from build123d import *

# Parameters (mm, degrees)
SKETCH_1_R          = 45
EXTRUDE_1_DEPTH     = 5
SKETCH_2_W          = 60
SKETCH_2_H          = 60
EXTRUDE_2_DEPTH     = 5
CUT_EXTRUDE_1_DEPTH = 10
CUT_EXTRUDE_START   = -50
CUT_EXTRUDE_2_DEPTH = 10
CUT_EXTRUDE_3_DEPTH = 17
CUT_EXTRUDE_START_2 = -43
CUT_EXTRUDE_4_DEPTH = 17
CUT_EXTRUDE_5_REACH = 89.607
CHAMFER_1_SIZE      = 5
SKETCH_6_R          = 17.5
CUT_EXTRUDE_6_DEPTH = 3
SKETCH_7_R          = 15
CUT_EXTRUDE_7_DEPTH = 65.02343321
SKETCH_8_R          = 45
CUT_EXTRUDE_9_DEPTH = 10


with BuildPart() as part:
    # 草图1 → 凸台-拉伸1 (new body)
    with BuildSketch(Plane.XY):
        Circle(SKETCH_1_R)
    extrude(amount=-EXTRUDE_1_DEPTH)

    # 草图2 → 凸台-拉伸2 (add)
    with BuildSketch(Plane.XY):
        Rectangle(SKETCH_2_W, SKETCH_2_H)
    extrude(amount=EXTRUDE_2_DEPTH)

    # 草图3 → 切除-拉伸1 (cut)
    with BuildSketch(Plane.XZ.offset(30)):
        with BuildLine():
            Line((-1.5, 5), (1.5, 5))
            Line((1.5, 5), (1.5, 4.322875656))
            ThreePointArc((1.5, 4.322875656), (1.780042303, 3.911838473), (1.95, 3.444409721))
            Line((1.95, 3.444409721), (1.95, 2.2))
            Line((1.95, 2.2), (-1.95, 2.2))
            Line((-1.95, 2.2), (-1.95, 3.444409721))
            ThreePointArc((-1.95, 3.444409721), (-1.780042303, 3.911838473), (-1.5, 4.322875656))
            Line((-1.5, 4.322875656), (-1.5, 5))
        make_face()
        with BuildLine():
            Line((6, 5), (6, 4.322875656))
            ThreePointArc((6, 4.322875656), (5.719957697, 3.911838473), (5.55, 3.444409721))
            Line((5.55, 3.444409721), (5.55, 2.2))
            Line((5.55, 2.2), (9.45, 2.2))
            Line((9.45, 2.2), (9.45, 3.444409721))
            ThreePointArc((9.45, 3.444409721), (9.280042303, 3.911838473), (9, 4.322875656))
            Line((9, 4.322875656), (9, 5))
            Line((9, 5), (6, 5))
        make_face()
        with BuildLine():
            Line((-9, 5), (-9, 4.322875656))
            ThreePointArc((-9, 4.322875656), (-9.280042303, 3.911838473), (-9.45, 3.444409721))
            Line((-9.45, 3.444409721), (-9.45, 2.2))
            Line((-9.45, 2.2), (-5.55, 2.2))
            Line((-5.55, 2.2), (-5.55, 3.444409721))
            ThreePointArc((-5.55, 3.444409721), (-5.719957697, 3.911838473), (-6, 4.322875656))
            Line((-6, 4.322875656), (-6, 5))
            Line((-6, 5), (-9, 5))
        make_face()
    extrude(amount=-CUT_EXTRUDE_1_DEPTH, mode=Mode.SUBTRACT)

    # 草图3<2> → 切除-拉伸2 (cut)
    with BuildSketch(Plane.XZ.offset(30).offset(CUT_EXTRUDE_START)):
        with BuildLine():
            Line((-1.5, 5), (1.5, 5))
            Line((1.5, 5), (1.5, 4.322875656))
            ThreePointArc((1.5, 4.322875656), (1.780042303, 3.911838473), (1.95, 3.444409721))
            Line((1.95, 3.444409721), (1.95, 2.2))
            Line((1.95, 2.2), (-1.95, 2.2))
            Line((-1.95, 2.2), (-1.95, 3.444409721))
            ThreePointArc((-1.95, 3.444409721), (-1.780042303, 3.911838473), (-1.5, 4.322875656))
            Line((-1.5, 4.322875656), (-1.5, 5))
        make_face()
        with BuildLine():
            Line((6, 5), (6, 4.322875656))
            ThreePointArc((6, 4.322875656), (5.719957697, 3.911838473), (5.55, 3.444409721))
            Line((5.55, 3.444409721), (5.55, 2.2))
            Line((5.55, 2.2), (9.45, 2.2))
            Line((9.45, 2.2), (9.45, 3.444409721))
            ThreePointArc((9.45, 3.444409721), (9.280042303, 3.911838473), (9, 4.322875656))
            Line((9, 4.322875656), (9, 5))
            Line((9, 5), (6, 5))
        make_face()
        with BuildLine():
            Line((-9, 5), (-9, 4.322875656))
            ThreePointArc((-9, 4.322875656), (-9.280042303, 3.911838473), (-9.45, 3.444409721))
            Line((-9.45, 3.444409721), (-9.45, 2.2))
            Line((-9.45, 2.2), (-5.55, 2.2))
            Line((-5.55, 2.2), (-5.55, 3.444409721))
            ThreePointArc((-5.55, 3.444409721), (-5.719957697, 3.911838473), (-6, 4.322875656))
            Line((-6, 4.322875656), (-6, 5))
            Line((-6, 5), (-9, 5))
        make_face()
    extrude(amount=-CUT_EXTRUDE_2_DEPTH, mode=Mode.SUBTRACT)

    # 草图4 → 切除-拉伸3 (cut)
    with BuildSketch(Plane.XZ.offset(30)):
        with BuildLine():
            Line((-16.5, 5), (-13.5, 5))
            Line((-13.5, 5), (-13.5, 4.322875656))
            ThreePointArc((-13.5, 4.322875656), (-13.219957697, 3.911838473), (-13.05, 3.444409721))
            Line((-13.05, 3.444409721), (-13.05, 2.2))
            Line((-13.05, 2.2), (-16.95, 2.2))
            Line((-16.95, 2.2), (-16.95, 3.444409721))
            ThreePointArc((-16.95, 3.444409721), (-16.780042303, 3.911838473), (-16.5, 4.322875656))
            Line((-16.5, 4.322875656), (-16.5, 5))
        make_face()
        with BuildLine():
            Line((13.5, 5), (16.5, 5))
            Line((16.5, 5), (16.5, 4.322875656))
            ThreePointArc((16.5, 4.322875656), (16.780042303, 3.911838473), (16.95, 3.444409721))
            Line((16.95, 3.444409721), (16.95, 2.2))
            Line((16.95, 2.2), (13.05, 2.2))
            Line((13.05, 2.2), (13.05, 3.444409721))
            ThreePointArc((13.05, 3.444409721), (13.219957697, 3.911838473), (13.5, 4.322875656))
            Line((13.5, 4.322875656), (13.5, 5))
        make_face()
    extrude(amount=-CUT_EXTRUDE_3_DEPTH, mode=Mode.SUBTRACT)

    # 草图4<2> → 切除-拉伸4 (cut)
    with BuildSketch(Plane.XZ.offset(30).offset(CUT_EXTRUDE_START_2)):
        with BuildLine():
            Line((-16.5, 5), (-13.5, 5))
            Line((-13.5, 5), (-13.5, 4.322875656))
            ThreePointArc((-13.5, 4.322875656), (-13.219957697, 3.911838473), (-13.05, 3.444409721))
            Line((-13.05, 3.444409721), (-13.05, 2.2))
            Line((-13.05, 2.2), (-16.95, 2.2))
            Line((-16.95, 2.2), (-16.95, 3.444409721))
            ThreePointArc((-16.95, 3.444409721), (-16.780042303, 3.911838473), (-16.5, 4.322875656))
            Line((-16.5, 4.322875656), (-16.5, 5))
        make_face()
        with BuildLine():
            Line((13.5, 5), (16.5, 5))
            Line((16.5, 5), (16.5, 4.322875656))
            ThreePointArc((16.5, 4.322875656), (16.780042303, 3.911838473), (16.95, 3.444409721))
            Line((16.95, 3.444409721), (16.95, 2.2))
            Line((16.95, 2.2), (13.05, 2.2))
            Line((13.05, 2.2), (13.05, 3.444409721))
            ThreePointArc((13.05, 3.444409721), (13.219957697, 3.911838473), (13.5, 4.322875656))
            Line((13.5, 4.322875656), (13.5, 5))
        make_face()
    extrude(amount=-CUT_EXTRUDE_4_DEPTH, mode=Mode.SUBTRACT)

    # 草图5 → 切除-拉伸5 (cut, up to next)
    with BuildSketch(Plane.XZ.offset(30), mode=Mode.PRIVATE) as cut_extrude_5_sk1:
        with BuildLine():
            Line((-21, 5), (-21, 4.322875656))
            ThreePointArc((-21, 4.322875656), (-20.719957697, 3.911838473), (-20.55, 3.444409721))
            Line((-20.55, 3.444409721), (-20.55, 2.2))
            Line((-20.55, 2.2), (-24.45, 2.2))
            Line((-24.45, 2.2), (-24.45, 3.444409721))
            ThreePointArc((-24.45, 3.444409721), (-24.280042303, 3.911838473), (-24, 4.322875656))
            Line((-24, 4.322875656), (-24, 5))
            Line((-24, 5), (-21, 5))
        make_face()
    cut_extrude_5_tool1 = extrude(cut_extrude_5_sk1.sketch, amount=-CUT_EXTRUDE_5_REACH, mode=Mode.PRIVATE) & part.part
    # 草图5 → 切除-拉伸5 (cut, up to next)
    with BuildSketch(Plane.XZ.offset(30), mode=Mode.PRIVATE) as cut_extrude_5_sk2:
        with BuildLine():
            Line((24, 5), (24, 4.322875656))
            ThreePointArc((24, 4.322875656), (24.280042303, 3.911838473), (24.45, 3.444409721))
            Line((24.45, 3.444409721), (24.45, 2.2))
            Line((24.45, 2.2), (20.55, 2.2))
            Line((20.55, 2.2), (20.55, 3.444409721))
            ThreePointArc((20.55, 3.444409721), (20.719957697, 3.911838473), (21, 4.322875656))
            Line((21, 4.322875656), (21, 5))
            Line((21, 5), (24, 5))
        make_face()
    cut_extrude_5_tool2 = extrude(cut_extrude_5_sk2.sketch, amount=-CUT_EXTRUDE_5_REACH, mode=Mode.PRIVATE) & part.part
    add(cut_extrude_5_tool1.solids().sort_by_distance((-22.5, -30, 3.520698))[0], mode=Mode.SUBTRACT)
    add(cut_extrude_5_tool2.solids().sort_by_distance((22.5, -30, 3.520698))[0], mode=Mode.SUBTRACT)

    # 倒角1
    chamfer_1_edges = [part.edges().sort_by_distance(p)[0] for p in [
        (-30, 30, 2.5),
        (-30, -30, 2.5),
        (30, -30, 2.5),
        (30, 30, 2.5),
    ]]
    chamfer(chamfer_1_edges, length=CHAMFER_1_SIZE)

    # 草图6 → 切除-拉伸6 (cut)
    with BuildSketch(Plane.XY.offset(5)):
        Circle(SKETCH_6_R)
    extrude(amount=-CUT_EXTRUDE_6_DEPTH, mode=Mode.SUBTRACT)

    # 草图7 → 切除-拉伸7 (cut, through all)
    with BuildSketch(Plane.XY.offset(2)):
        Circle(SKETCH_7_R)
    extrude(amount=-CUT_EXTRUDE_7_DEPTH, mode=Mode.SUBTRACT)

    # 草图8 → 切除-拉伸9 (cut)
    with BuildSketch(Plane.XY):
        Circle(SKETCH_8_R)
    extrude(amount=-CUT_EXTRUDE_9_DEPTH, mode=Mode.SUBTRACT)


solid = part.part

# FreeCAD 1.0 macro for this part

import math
import FreeCAD as App
import Part
import Sketcher

V = App.Vector


def edges_at(feature, points):
    """Names of the edges that pass closest to the given points."""
    edges = feature.Shape.Edges
    near = lambda p: min(range(len(edges)), key=lambda i: edges[i].distToShape(Part.Vertex(*p))[0])
    return sorted({f"Edge{near(p) + 1}" for p in points})


def add_polygon(sketch, points):
    """Adds a closed chain of lines whose ends are joined by coincident constraints."""
    first, n = sketch.GeometryCount, len(points)
    for a, b in zip(points, points[1:] + points[:1]):
        sketch.addGeometry(Part.LineSegment(App.Vector(*a, 0), App.Vector(*b, 0)), False)
    for i in range(n):
        sketch.addConstraint(Sketcher.Constraint("Coincident", first + i, 2, first + (i + 1) % n, 1))

doc = App.newDocument("Part")
params = doc.addObject("Spreadsheet::Sheet", "Params")
for row, (alias, value) in enumerate([
    ("sketch1_diameter", "90 mm"),
    ("pad1_length", "5 mm"),
    ("sketch2_width", "60 mm"),
    ("pad2_length", "5 mm"),
    ("sketch3_radius", "2 mm"),
    ("sketch3_width", "3 mm"),
    ("sketch3_width2", "3.9 mm"),
    ("pocket1_length", "10 mm"),
    ("sketch4_radius", "2 mm"),
    ("sketch4_width", "3 mm"),
    ("sketch4_width2", "3.9 mm"),
    ("pocket2_length", "10 mm"),
    ("sketch5_radius", "2 mm"),
    ("sketch5_width", "3 mm"),
    ("sketch5_width2", "3.9 mm"),
    ("pocket3_length", "17 mm"),
    ("sketch6_radius", "2 mm"),
    ("sketch6_width", "3 mm"),
    ("sketch6_width2", "3.9 mm"),
    ("pocket4_length", "17 mm"),
    ("sketch7_radius", "2 mm"),
    ("sketch7_width", "3 mm"),
    ("sketch7_width2", "3.9 mm"),
    ("sketch8_radius", "2 mm"),
    ("sketch8_width", "3 mm"),
    ("sketch8_width2", "3.9 mm"),
    ("chamfer_size", "5 mm"),
    ("sketch9_diameter", "35 mm"),
    ("pocket7_length", "3 mm"),
    ("sketch10_diameter", "30 mm"),
    ("sketch11_diameter", "90 mm"),
    ("pocket9_length", "10 mm"),
], start=1):
    params.set(f"A{row}", alias)
    params.set(f"B{row}", "=" + value)
    params.setAlias(f"B{row}", alias)

body = doc.addObject("PartDesign::Body", "Body")

sketch1 = body.newObject("Sketcher::SketchObject", "Sketch")
sketch1.AttachmentSupport = (doc.getObject("XY_Plane"), [""])
sketch1.MapMode = "FlatFace"
sketch1.addGeometry(Part.Circle(V(0, 0, 0), V(0, 0, 1), 45), False)
sketch1.addConstraint([
    Sketcher.Constraint("Coincident", 0, 3, -1, 1),
    Sketcher.Constraint("Diameter", 0, 90.0),
])
sketch1.setExpression("Constraints[1]", "Params.sketch1_diameter")
pad1 = body.newObject("PartDesign::Pad", "Pad")
pad1.Profile = sketch1
pad1.setExpression("Length", "Params.pad1_length")
pad1.Reversed = True

sketch2 = body.newObject("Sketcher::SketchObject", "Sketch001")
sketch2.AttachmentSupport = (doc.getObject("XY_Plane"), [""])
sketch2.MapMode = "FlatFace"
add_polygon(sketch2, [(-30, 30), (-30, -30), (30, -30), (30, 30)])
sketch2.addConstraint([
    Sketcher.Constraint("Vertical", 0),
    Sketcher.Constraint("Horizontal", 1),
    Sketcher.Constraint("Vertical", 2),
    Sketcher.Constraint("Horizontal", 3),
    Sketcher.Constraint("Symmetric", 0, 2, 2, 2, -1, 1),
    Sketcher.Constraint("Equal", 3, 0),
    Sketcher.Constraint("DistanceX", 1, 1, 1, 2, 60.0),
])
sketch2.setExpression("Constraints[10]", "Params.sketch2_width")
pad2 = body.newObject("PartDesign::Pad", "Pad001")
pad2.Profile = sketch2
pad2.setExpression("Length", "Params.pad2_length")

sketch3 = body.newObject("Sketcher::SketchObject", "Sketch002")
sketch3.AttachmentSupport = (doc.getObject("XZ_Plane"), [""])
sketch3.MapMode = "FlatFace"
sketch3.AttachmentOffset = App.Placement(V(0, 0, 30), App.Rotation())
sketch3.addGeometry([
    Part.LineSegment(V(1.5, 5, 0), V(-1.5, 5, 0)),
    Part.LineSegment(V(-1.5, 5, 0), V(-1.5, 4.3, 0)),
    Part.ArcOfCircle(Part.Circle(V(0, 3, 0), V(0, 0, 1), 2), math.radians(139), math.radians(167)),
    Part.LineSegment(V(-1.9, 3.4, 0), V(-1.9, 2.2, 0)),
    Part.LineSegment(V(-1.9, 2.2, 0), V(1.9, 2.2, 0)),
    Part.LineSegment(V(1.9, 2.2, 0), V(1.9, 3.4, 0)),
    Part.ArcOfCircle(Part.Circle(V(0, 3, 0), V(0, 0, 1), 2), math.radians(13), math.radians(41)),
    Part.LineSegment(V(1.5, 4.3, 0), V(1.5, 5, 0)),
    Part.LineSegment(V(6, 5, 0), V(6, 4.3, 0)),
    Part.ArcOfCircle(Part.Circle(V(7.5, 3, 0), V(0, 0, 1), 2), math.radians(139), math.radians(167)),
    Part.LineSegment(V(5.5, 3.4, 0), V(5.5, 2.2, 0)),
    Part.LineSegment(V(5.5, 2.2, 0), V(9.4, 2.2, 0)),
    Part.LineSegment(V(9.4, 2.2, 0), V(9.4, 3.4, 0)),
    Part.ArcOfCircle(Part.Circle(V(7.5, 3, 0), V(0, 0, 1), 2), math.radians(13), math.radians(41)),
    Part.LineSegment(V(9, 4.3, 0), V(9, 5, 0)),
    Part.LineSegment(V(9, 5, 0), V(6, 5, 0)),
    Part.LineSegment(V(-9, 5, 0), V(-9, 4.3, 0)),
    Part.ArcOfCircle(Part.Circle(V(-7.5, 3, 0), V(0, 0, 1), 2), math.radians(139), math.radians(167)),
    Part.LineSegment(V(-9.4, 3.4, 0), V(-9.4, 2.2, 0)),
    Part.LineSegment(V(-9.4, 2.2, 0), V(-5.5, 2.2, 0)),
    Part.LineSegment(V(-5.5, 2.2, 0), V(-5.5, 3.4, 0)),
    Part.ArcOfCircle(Part.Circle(V(-7.5, 3, 0), V(0, 0, 1), 2), math.radians(13), math.radians(41)),
    Part.LineSegment(V(-6, 4.3, 0), V(-6, 5, 0)),
    Part.LineSegment(V(-6, 5, 0), V(-9, 5, 0)),
], False)
sketch3.addConstraint([
    Sketcher.Constraint("Coincident", 0, 2, 1, 1),
    Sketcher.Constraint("Coincident", 1, 2, 2, 1),
    Sketcher.Constraint("Coincident", 2, 2, 3, 1),
    Sketcher.Constraint("Coincident", 3, 2, 4, 1),
    Sketcher.Constraint("Coincident", 4, 2, 5, 1),
    Sketcher.Constraint("Coincident", 5, 2, 6, 1),
    Sketcher.Constraint("Coincident", 6, 2, 7, 1),
    Sketcher.Constraint("Coincident", 7, 2, 0, 1),
    Sketcher.Constraint("Coincident", 8, 2, 9, 1),
    Sketcher.Constraint("Coincident", 9, 2, 10, 1),
    Sketcher.Constraint("Coincident", 10, 2, 11, 1),
    Sketcher.Constraint("Coincident", 11, 2, 12, 1),
    Sketcher.Constraint("Coincident", 12, 2, 13, 1),
    Sketcher.Constraint("Coincident", 13, 2, 14, 1),
    Sketcher.Constraint("Coincident", 14, 2, 15, 1),
    Sketcher.Constraint("Coincident", 15, 2, 8, 1),
    Sketcher.Constraint("Coincident", 16, 2, 17, 1),
    Sketcher.Constraint("Coincident", 17, 2, 18, 1),
    Sketcher.Constraint("Coincident", 18, 2, 19, 1),
    Sketcher.Constraint("Coincident", 19, 2, 20, 1),
    Sketcher.Constraint("Coincident", 20, 2, 21, 1),
    Sketcher.Constraint("Coincident", 21, 2, 22, 1),
    Sketcher.Constraint("Coincident", 22, 2, 23, 1),
    Sketcher.Constraint("Coincident", 23, 2, 16, 1),
    Sketcher.Constraint("Horizontal", 0),
    Sketcher.Constraint("Vertical", 1),
    Sketcher.Constraint("Vertical", 3),
    Sketcher.Constraint("Horizontal", 4),
    Sketcher.Constraint("Vertical", 5),
    Sketcher.Constraint("Vertical", 7),
    Sketcher.Constraint("Vertical", 8),
    Sketcher.Constraint("Vertical", 10),
    Sketcher.Constraint("Horizontal", 11),
    Sketcher.Constraint("Vertical", 12),
    Sketcher.Constraint("Vertical", 14),
    Sketcher.Constraint("Horizontal", 15),
    Sketcher.Constraint("Vertical", 16),
    Sketcher.Constraint("Vertical", 18),
    Sketcher.Constraint("Horizontal", 19),
    Sketcher.Constraint("Vertical", 20),
    Sketcher.Constraint("Vertical", 22),
    Sketcher.Constraint("Horizontal", 23),
    Sketcher.Constraint("Coincident", 6, 3, 2, 3),
    Sketcher.Constraint("Coincident", 13, 3, 9, 3),
    Sketcher.Constraint("Coincident", 21, 3, 17, 3),
    Sketcher.Constraint("Equal", 2, 6),
    Sketcher.Constraint("Equal", 6, 9),
    Sketcher.Constraint("Equal", 9, 13),
    Sketcher.Constraint("Equal", 13, 17),
    Sketcher.Constraint("Equal", 17, 21),
    Sketcher.Constraint("Symmetric", 9, 3, 17, 3, -2),
    Sketcher.Constraint("Symmetric", 2, 2, 5, 2, -2),
    Sketcher.Constraint("Symmetric", 11, 2, 18, 2, -2),
    Sketcher.Constraint("Symmetric", 15, 2, 22, 2, -2),
    Sketcher.Constraint("Horizontal", 6, 3, 9, 3),
    Sketcher.Constraint("Horizontal", 1, 2, 6, 2),
    Sketcher.Constraint("Horizontal", 6, 2, 8, 2),
    Sketcher.Constraint("Horizontal", 5, 2, 9, 2),
    Sketcher.Constraint("Horizontal", 4, 2, 10, 2),
    Sketcher.Constraint("Horizontal", 9, 2, 12, 2),
    Sketcher.Constraint("Horizontal", 8, 2, 13, 2),
    Sketcher.Constraint("Horizontal", 7, 2, 14, 2),
    Sketcher.Constraint("Horizontal", 13, 2, 16, 2),
    Sketcher.Constraint("Horizontal", 17, 2, 20, 2),
    Sketcher.Constraint("Radius", 2, 2.0),
    Sketcher.Constraint("DistanceX", 0, 2, 0, 1, 3.0),
    Sketcher.Constraint("DistanceX", 4, 1, 4, 2, 3.9),
    Sketcher.Constraint("DistanceY", -1, 1, 2, 3, 3.0),
    Sketcher.Constraint("DistanceY", -1, 1, 0, 2, 5.0),
    Sketcher.Constraint("DistanceX", -1, 1, 8, 2, 6.0),
    Sketcher.Constraint("DistanceY", -1, 1, 3, 2, 2.2),
])
sketch3.setExpression("Constraints[64]", "Params.sketch3_radius")
sketch3.setExpression("Constraints[65]", "Params.sketch3_width")
sketch3.setExpression("Constraints[66]", "Params.sketch3_width2")
pocket1 = body.newObject("PartDesign::Pocket", "Pocket")
pocket1.Profile = sketch3
pocket1.setExpression("Length", "Params.pocket1_length")

sketch4 = body.newObject("Sketcher::SketchObject", "Sketch003")
sketch4.AttachmentSupport = (doc.getObject("XZ_Plane"), [""])
sketch4.MapMode = "FlatFace"
sketch4.AttachmentOffset = App.Placement(V(0, 0, -20), App.Rotation())
sketch4.addGeometry([
    Part.LineSegment(V(1.5, 5, 0), V(-1.5, 5, 0)),
    Part.LineSegment(V(-1.5, 5, 0), V(-1.5, 4.3, 0)),
    Part.ArcOfCircle(Part.Circle(V(0, 3, 0), V(0, 0, 1), 2), math.radians(139), math.radians(167)),
    Part.LineSegment(V(-1.9, 3.4, 0), V(-1.9, 2.2, 0)),
    Part.LineSegment(V(-1.9, 2.2, 0), V(1.9, 2.2, 0)),
    Part.LineSegment(V(1.9, 2.2, 0), V(1.9, 3.4, 0)),
    Part.ArcOfCircle(Part.Circle(V(0, 3, 0), V(0, 0, 1), 2), math.radians(13), math.radians(41)),
    Part.LineSegment(V(1.5, 4.3, 0), V(1.5, 5, 0)),
    Part.LineSegment(V(6, 5, 0), V(6, 4.3, 0)),
    Part.ArcOfCircle(Part.Circle(V(7.5, 3, 0), V(0, 0, 1), 2), math.radians(139), math.radians(167)),
    Part.LineSegment(V(5.5, 3.4, 0), V(5.5, 2.2, 0)),
    Part.LineSegment(V(5.5, 2.2, 0), V(9.4, 2.2, 0)),
    Part.LineSegment(V(9.4, 2.2, 0), V(9.4, 3.4, 0)),
    Part.ArcOfCircle(Part.Circle(V(7.5, 3, 0), V(0, 0, 1), 2), math.radians(13), math.radians(41)),
    Part.LineSegment(V(9, 4.3, 0), V(9, 5, 0)),
    Part.LineSegment(V(9, 5, 0), V(6, 5, 0)),
    Part.LineSegment(V(-9, 5, 0), V(-9, 4.3, 0)),
    Part.ArcOfCircle(Part.Circle(V(-7.5, 3, 0), V(0, 0, 1), 2), math.radians(139), math.radians(167)),
    Part.LineSegment(V(-9.4, 3.4, 0), V(-9.4, 2.2, 0)),
    Part.LineSegment(V(-9.4, 2.2, 0), V(-5.5, 2.2, 0)),
    Part.LineSegment(V(-5.5, 2.2, 0), V(-5.5, 3.4, 0)),
    Part.ArcOfCircle(Part.Circle(V(-7.5, 3, 0), V(0, 0, 1), 2), math.radians(13), math.radians(41)),
    Part.LineSegment(V(-6, 4.3, 0), V(-6, 5, 0)),
    Part.LineSegment(V(-6, 5, 0), V(-9, 5, 0)),
], False)
sketch4.addConstraint([
    Sketcher.Constraint("Coincident", 0, 2, 1, 1),
    Sketcher.Constraint("Coincident", 1, 2, 2, 1),
    Sketcher.Constraint("Coincident", 2, 2, 3, 1),
    Sketcher.Constraint("Coincident", 3, 2, 4, 1),
    Sketcher.Constraint("Coincident", 4, 2, 5, 1),
    Sketcher.Constraint("Coincident", 5, 2, 6, 1),
    Sketcher.Constraint("Coincident", 6, 2, 7, 1),
    Sketcher.Constraint("Coincident", 7, 2, 0, 1),
    Sketcher.Constraint("Coincident", 8, 2, 9, 1),
    Sketcher.Constraint("Coincident", 9, 2, 10, 1),
    Sketcher.Constraint("Coincident", 10, 2, 11, 1),
    Sketcher.Constraint("Coincident", 11, 2, 12, 1),
    Sketcher.Constraint("Coincident", 12, 2, 13, 1),
    Sketcher.Constraint("Coincident", 13, 2, 14, 1),
    Sketcher.Constraint("Coincident", 14, 2, 15, 1),
    Sketcher.Constraint("Coincident", 15, 2, 8, 1),
    Sketcher.Constraint("Coincident", 16, 2, 17, 1),
    Sketcher.Constraint("Coincident", 17, 2, 18, 1),
    Sketcher.Constraint("Coincident", 18, 2, 19, 1),
    Sketcher.Constraint("Coincident", 19, 2, 20, 1),
    Sketcher.Constraint("Coincident", 20, 2, 21, 1),
    Sketcher.Constraint("Coincident", 21, 2, 22, 1),
    Sketcher.Constraint("Coincident", 22, 2, 23, 1),
    Sketcher.Constraint("Coincident", 23, 2, 16, 1),
    Sketcher.Constraint("Horizontal", 0),
    Sketcher.Constraint("Vertical", 1),
    Sketcher.Constraint("Vertical", 3),
    Sketcher.Constraint("Horizontal", 4),
    Sketcher.Constraint("Vertical", 5),
    Sketcher.Constraint("Vertical", 7),
    Sketcher.Constraint("Vertical", 8),
    Sketcher.Constraint("Vertical", 10),
    Sketcher.Constraint("Horizontal", 11),
    Sketcher.Constraint("Vertical", 12),
    Sketcher.Constraint("Vertical", 14),
    Sketcher.Constraint("Horizontal", 15),
    Sketcher.Constraint("Vertical", 16),
    Sketcher.Constraint("Vertical", 18),
    Sketcher.Constraint("Horizontal", 19),
    Sketcher.Constraint("Vertical", 20),
    Sketcher.Constraint("Vertical", 22),
    Sketcher.Constraint("Horizontal", 23),
    Sketcher.Constraint("Coincident", 6, 3, 2, 3),
    Sketcher.Constraint("Coincident", 13, 3, 9, 3),
    Sketcher.Constraint("Coincident", 21, 3, 17, 3),
    Sketcher.Constraint("Equal", 2, 6),
    Sketcher.Constraint("Equal", 6, 9),
    Sketcher.Constraint("Equal", 9, 13),
    Sketcher.Constraint("Equal", 13, 17),
    Sketcher.Constraint("Equal", 17, 21),
    Sketcher.Constraint("Symmetric", 9, 3, 17, 3, -2),
    Sketcher.Constraint("Symmetric", 2, 2, 5, 2, -2),
    Sketcher.Constraint("Symmetric", 11, 2, 18, 2, -2),
    Sketcher.Constraint("Symmetric", 15, 2, 22, 2, -2),
    Sketcher.Constraint("Horizontal", 6, 3, 9, 3),
    Sketcher.Constraint("Horizontal", 1, 2, 6, 2),
    Sketcher.Constraint("Horizontal", 6, 2, 8, 2),
    Sketcher.Constraint("Horizontal", 5, 2, 9, 2),
    Sketcher.Constraint("Horizontal", 4, 2, 10, 2),
    Sketcher.Constraint("Horizontal", 9, 2, 12, 2),
    Sketcher.Constraint("Horizontal", 8, 2, 13, 2),
    Sketcher.Constraint("Horizontal", 7, 2, 14, 2),
    Sketcher.Constraint("Horizontal", 13, 2, 16, 2),
    Sketcher.Constraint("Horizontal", 17, 2, 20, 2),
    Sketcher.Constraint("Radius", 2, 2.0),
    Sketcher.Constraint("DistanceX", 0, 2, 0, 1, 3.0),
    Sketcher.Constraint("DistanceX", 4, 1, 4, 2, 3.9),
    Sketcher.Constraint("DistanceY", -1, 1, 2, 3, 3.0),
    Sketcher.Constraint("DistanceY", -1, 1, 0, 2, 5.0),
    Sketcher.Constraint("DistanceX", -1, 1, 8, 2, 6.0),
    Sketcher.Constraint("DistanceY", -1, 1, 3, 2, 2.2),
])
sketch4.setExpression("Constraints[64]", "Params.sketch4_radius")
sketch4.setExpression("Constraints[65]", "Params.sketch4_width")
sketch4.setExpression("Constraints[66]", "Params.sketch4_width2")
pocket2 = body.newObject("PartDesign::Pocket", "Pocket001")
pocket2.Profile = sketch4
pocket2.setExpression("Length", "Params.pocket2_length")

sketch5 = body.newObject("Sketcher::SketchObject", "Sketch004")
sketch5.AttachmentSupport = (doc.getObject("XZ_Plane"), [""])
sketch5.MapMode = "FlatFace"
sketch5.AttachmentOffset = App.Placement(V(0, 0, 30), App.Rotation())
sketch5.addGeometry([
    Part.LineSegment(V(-13.5, 5, 0), V(-16.5, 5, 0)),
    Part.LineSegment(V(-16.5, 5, 0), V(-16.5, 4.3, 0)),
    Part.ArcOfCircle(Part.Circle(V(-15, 3, 0), V(0, 0, 1), 2), math.radians(139), math.radians(167)),
    Part.LineSegment(V(-16.9, 3.4, 0), V(-16.9, 2.2, 0)),
    Part.LineSegment(V(-16.9, 2.2, 0), V(-13.1, 2.2, 0)),
    Part.LineSegment(V(-13.1, 2.2, 0), V(-13.1, 3.4, 0)),
    Part.ArcOfCircle(Part.Circle(V(-15, 3, 0), V(0, 0, 1), 2), math.radians(13), math.radians(41)),
    Part.LineSegment(V(-13.5, 4.3, 0), V(-13.5, 5, 0)),
    Part.LineSegment(V(16.5, 5, 0), V(13.5, 5, 0)),
    Part.LineSegment(V(13.5, 5, 0), V(13.5, 4.3, 0)),
    Part.ArcOfCircle(Part.Circle(V(15, 3, 0), V(0, 0, 1), 2), math.radians(139), math.radians(167)),
    Part.LineSegment(V(13.1, 3.4, 0), V(13.1, 2.2, 0)),
    Part.LineSegment(V(13.1, 2.2, 0), V(16.9, 2.2, 0)),
    Part.LineSegment(V(16.9, 2.2, 0), V(16.9, 3.4, 0)),
    Part.ArcOfCircle(Part.Circle(V(15, 3, 0), V(0, 0, 1), 2), math.radians(13), math.radians(41)),
    Part.LineSegment(V(16.5, 4.3, 0), V(16.5, 5, 0)),
], False)
sketch5.addConstraint([
    Sketcher.Constraint("Coincident", 0, 2, 1, 1),
    Sketcher.Constraint("Coincident", 1, 2, 2, 1),
    Sketcher.Constraint("Coincident", 2, 2, 3, 1),
    Sketcher.Constraint("Coincident", 3, 2, 4, 1),
    Sketcher.Constraint("Coincident", 4, 2, 5, 1),
    Sketcher.Constraint("Coincident", 5, 2, 6, 1),
    Sketcher.Constraint("Coincident", 6, 2, 7, 1),
    Sketcher.Constraint("Coincident", 7, 2, 0, 1),
    Sketcher.Constraint("Coincident", 8, 2, 9, 1),
    Sketcher.Constraint("Coincident", 9, 2, 10, 1),
    Sketcher.Constraint("Coincident", 10, 2, 11, 1),
    Sketcher.Constraint("Coincident", 11, 2, 12, 1),
    Sketcher.Constraint("Coincident", 12, 2, 13, 1),
    Sketcher.Constraint("Coincident", 13, 2, 14, 1),
    Sketcher.Constraint("Coincident", 14, 2, 15, 1),
    Sketcher.Constraint("Coincident", 15, 2, 8, 1),
    Sketcher.Constraint("Horizontal", 0),
    Sketcher.Constraint("Vertical", 1),
    Sketcher.Constraint("Vertical", 3),
    Sketcher.Constraint("Horizontal", 4),
    Sketcher.Constraint("Vertical", 5),
    Sketcher.Constraint("Vertical", 7),
    Sketcher.Constraint("Horizontal", 8),
    Sketcher.Constraint("Vertical", 9),
    Sketcher.Constraint("Vertical", 11),
    Sketcher.Constraint("Horizontal", 12),
    Sketcher.Constraint("Vertical", 13),
    Sketcher.Constraint("Vertical", 15),
    Sketcher.Constraint("Coincident", 6, 3, 2, 3),
    Sketcher.Constraint("Coincident", 14, 3, 10, 3),
    Sketcher.Constraint("Equal", 2, 6),
    Sketcher.Constraint("Equal", 6, 10),
    Sketcher.Constraint("Equal", 10, 14),
    Sketcher.Constraint("Symmetric", 2, 3, 10, 3, -2),
    Sketcher.Constraint("Symmetric", 7, 2, 8, 2, -2),
    Sketcher.Constraint("Symmetric", 4, 2, 11, 2, -2),
    Sketcher.Constraint("Horizontal", 2, 2, 5, 2),
    Sketcher.Constraint("Horizontal", 1, 2, 6, 2),
    Sketcher.Constraint("Horizontal", 10, 2, 13, 2),
    Sketcher.Constraint("Horizontal", 9, 2, 14, 2),
    Sketcher.Constraint("Radius", 2, 2.0),
    Sketcher.Constraint("DistanceX", 0, 2, 0, 1, 3.0),
    Sketcher.Constraint("DistanceX", 4, 1, 4, 2, 3.9),
    Sketcher.Constraint("DistanceX", 2, 3, -1, 1, 15.0),
    Sketcher.Constraint("DistanceY", -1, 1, 2, 3, 3.0),
    Sketcher.Constraint("DistanceY", -1, 1, 0, 2, 5.0),
    Sketcher.Constraint("DistanceY", -1, 1, 3, 2, 2.2),
])
sketch5.setExpression("Constraints[40]", "Params.sketch5_radius")
sketch5.setExpression("Constraints[41]", "Params.sketch5_width")
sketch5.setExpression("Constraints[42]", "Params.sketch5_width2")
pocket3 = body.newObject("PartDesign::Pocket", "Pocket002")
pocket3.Profile = sketch5
pocket3.setExpression("Length", "Params.pocket3_length")

sketch6 = body.newObject("Sketcher::SketchObject", "Sketch005")
sketch6.AttachmentSupport = (doc.getObject("XZ_Plane"), [""])
sketch6.MapMode = "FlatFace"
sketch6.AttachmentOffset = App.Placement(V(0, 0, -13), App.Rotation())
sketch6.addGeometry([
    Part.LineSegment(V(-13.5, 5, 0), V(-16.5, 5, 0)),
    Part.LineSegment(V(-16.5, 5, 0), V(-16.5, 4.3, 0)),
    Part.ArcOfCircle(Part.Circle(V(-15, 3, 0), V(0, 0, 1), 2), math.radians(139), math.radians(167)),
    Part.LineSegment(V(-16.9, 3.4, 0), V(-16.9, 2.2, 0)),
    Part.LineSegment(V(-16.9, 2.2, 0), V(-13.1, 2.2, 0)),
    Part.LineSegment(V(-13.1, 2.2, 0), V(-13.1, 3.4, 0)),
    Part.ArcOfCircle(Part.Circle(V(-15, 3, 0), V(0, 0, 1), 2), math.radians(13), math.radians(41)),
    Part.LineSegment(V(-13.5, 4.3, 0), V(-13.5, 5, 0)),
    Part.LineSegment(V(16.5, 5, 0), V(13.5, 5, 0)),
    Part.LineSegment(V(13.5, 5, 0), V(13.5, 4.3, 0)),
    Part.ArcOfCircle(Part.Circle(V(15, 3, 0), V(0, 0, 1), 2), math.radians(139), math.radians(167)),
    Part.LineSegment(V(13.1, 3.4, 0), V(13.1, 2.2, 0)),
    Part.LineSegment(V(13.1, 2.2, 0), V(16.9, 2.2, 0)),
    Part.LineSegment(V(16.9, 2.2, 0), V(16.9, 3.4, 0)),
    Part.ArcOfCircle(Part.Circle(V(15, 3, 0), V(0, 0, 1), 2), math.radians(13), math.radians(41)),
    Part.LineSegment(V(16.5, 4.3, 0), V(16.5, 5, 0)),
], False)
sketch6.addConstraint([
    Sketcher.Constraint("Coincident", 0, 2, 1, 1),
    Sketcher.Constraint("Coincident", 1, 2, 2, 1),
    Sketcher.Constraint("Coincident", 2, 2, 3, 1),
    Sketcher.Constraint("Coincident", 3, 2, 4, 1),
    Sketcher.Constraint("Coincident", 4, 2, 5, 1),
    Sketcher.Constraint("Coincident", 5, 2, 6, 1),
    Sketcher.Constraint("Coincident", 6, 2, 7, 1),
    Sketcher.Constraint("Coincident", 7, 2, 0, 1),
    Sketcher.Constraint("Coincident", 8, 2, 9, 1),
    Sketcher.Constraint("Coincident", 9, 2, 10, 1),
    Sketcher.Constraint("Coincident", 10, 2, 11, 1),
    Sketcher.Constraint("Coincident", 11, 2, 12, 1),
    Sketcher.Constraint("Coincident", 12, 2, 13, 1),
    Sketcher.Constraint("Coincident", 13, 2, 14, 1),
    Sketcher.Constraint("Coincident", 14, 2, 15, 1),
    Sketcher.Constraint("Coincident", 15, 2, 8, 1),
    Sketcher.Constraint("Horizontal", 0),
    Sketcher.Constraint("Vertical", 1),
    Sketcher.Constraint("Vertical", 3),
    Sketcher.Constraint("Horizontal", 4),
    Sketcher.Constraint("Vertical", 5),
    Sketcher.Constraint("Vertical", 7),
    Sketcher.Constraint("Horizontal", 8),
    Sketcher.Constraint("Vertical", 9),
    Sketcher.Constraint("Vertical", 11),
    Sketcher.Constraint("Horizontal", 12),
    Sketcher.Constraint("Vertical", 13),
    Sketcher.Constraint("Vertical", 15),
    Sketcher.Constraint("Coincident", 6, 3, 2, 3),
    Sketcher.Constraint("Coincident", 14, 3, 10, 3),
    Sketcher.Constraint("Equal", 2, 6),
    Sketcher.Constraint("Equal", 6, 10),
    Sketcher.Constraint("Equal", 10, 14),
    Sketcher.Constraint("Symmetric", 2, 3, 10, 3, -2),
    Sketcher.Constraint("Symmetric", 7, 2, 8, 2, -2),
    Sketcher.Constraint("Symmetric", 4, 2, 11, 2, -2),
    Sketcher.Constraint("Horizontal", 2, 2, 5, 2),
    Sketcher.Constraint("Horizontal", 1, 2, 6, 2),
    Sketcher.Constraint("Horizontal", 10, 2, 13, 2),
    Sketcher.Constraint("Horizontal", 9, 2, 14, 2),
    Sketcher.Constraint("Radius", 2, 2.0),
    Sketcher.Constraint("DistanceX", 0, 2, 0, 1, 3.0),
    Sketcher.Constraint("DistanceX", 4, 1, 4, 2, 3.9),
    Sketcher.Constraint("DistanceX", 2, 3, -1, 1, 15.0),
    Sketcher.Constraint("DistanceY", -1, 1, 2, 3, 3.0),
    Sketcher.Constraint("DistanceY", -1, 1, 0, 2, 5.0),
    Sketcher.Constraint("DistanceY", -1, 1, 3, 2, 2.2),
])
sketch6.setExpression("Constraints[40]", "Params.sketch6_radius")
sketch6.setExpression("Constraints[41]", "Params.sketch6_width")
sketch6.setExpression("Constraints[42]", "Params.sketch6_width2")
pocket4 = body.newObject("PartDesign::Pocket", "Pocket003")
pocket4.Profile = sketch6
pocket4.setExpression("Length", "Params.pocket4_length")

sketch7 = body.newObject("Sketcher::SketchObject", "Sketch006")
sketch7.AttachmentSupport = (doc.getObject("XZ_Plane"), [""])
sketch7.MapMode = "FlatFace"
sketch7.AttachmentOffset = App.Placement(V(0, 0, 30), App.Rotation())
sketch7.addGeometry([
    Part.LineSegment(V(-21, 4.3, 0), V(-21, 5, 0)),
    Part.LineSegment(V(-21, 5, 0), V(-24, 5, 0)),
    Part.LineSegment(V(-24, 5, 0), V(-24, 4.3, 0)),
    Part.ArcOfCircle(Part.Circle(V(-22.5, 3, 0), V(0, 0, 1), 2), math.radians(139), math.radians(167)),
    Part.LineSegment(V(-24.4, 3.4, 0), V(-24.4, 2.2, 0)),
    Part.LineSegment(V(-24.4, 2.2, 0), V(-20.6, 2.2, 0)),
    Part.LineSegment(V(-20.6, 2.2, 0), V(-20.6, 3.4, 0)),
    Part.ArcOfCircle(Part.Circle(V(-22.5, 3, 0), V(0, 0, 1), 2), math.radians(13), math.radians(41)),
], False)
sketch7.addConstraint([
    Sketcher.Constraint("Coincident", 0, 2, 1, 1),
    Sketcher.Constraint("Coincident", 1, 2, 2, 1),
    Sketcher.Constraint("Coincident", 2, 2, 3, 1),
    Sketcher.Constraint("Coincident", 3, 2, 4, 1),
    Sketcher.Constraint("Coincident", 4, 2, 5, 1),
    Sketcher.Constraint("Coincident", 5, 2, 6, 1),
    Sketcher.Constraint("Coincident", 6, 2, 7, 1),
    Sketcher.Constraint("Coincident", 7, 2, 0, 1),
    Sketcher.Constraint("Vertical", 0),
    Sketcher.Constraint("Horizontal", 1),
    Sketcher.Constraint("Vertical", 2),
    Sketcher.Constraint("Vertical", 4),
    Sketcher.Constraint("Horizontal", 5),
    Sketcher.Constraint("Vertical", 6),
    Sketcher.Constraint("Coincident", 7, 3, 3, 3),
    Sketcher.Constraint("Equal", 3, 7),
    Sketcher.Constraint("Horizontal", 3, 2, 6, 2),
    Sketcher.Constraint("Horizontal", 2, 2, 7, 2),
    Sketcher.Constraint("Radius", 3, 2.0),
    Sketcher.Constraint("DistanceX", 1, 2, 1, 1, 3.0),
    Sketcher.Constraint("DistanceX", 5, 1, 5, 2, 3.9),
    Sketcher.Constraint("DistanceY", -1, 1, 3, 3, 3.0),
    Sketcher.Constraint("DistanceX", 0, 2, -1, 1, 21.0),
    Sketcher.Constraint("DistanceY", -1, 1, 0, 2, 5.0),
    Sketcher.Constraint("DistanceY", -1, 1, 4, 2, 2.2),
])
sketch7.setExpression("Constraints[18]", "Params.sketch7_radius")
sketch7.setExpression("Constraints[19]", "Params.sketch7_width")
sketch7.setExpression("Constraints[20]", "Params.sketch7_width2")
pocket5 = body.newObject("PartDesign::Pocket", "Pocket004")
pocket5.Profile = sketch7
pocket5.Type = "UpToFirst"

sketch8 = body.newObject("Sketcher::SketchObject", "Sketch007")
sketch8.AttachmentSupport = (doc.getObject("XZ_Plane"), [""])
sketch8.MapMode = "FlatFace"
sketch8.AttachmentOffset = App.Placement(V(0, 0, 30), App.Rotation())
sketch8.addGeometry([
    Part.LineSegment(V(24, 4.3, 0), V(24, 5, 0)),
    Part.LineSegment(V(24, 5, 0), V(21, 5, 0)),
    Part.LineSegment(V(21, 5, 0), V(21, 4.3, 0)),
    Part.ArcOfCircle(Part.Circle(V(22.5, 3, 0), V(0, 0, 1), 2), math.radians(139), math.radians(167)),
    Part.LineSegment(V(20.6, 3.4, 0), V(20.6, 2.2, 0)),
    Part.LineSegment(V(20.6, 2.2, 0), V(24.4, 2.2, 0)),
    Part.LineSegment(V(24.4, 2.2, 0), V(24.4, 3.4, 0)),
    Part.ArcOfCircle(Part.Circle(V(22.5, 3, 0), V(0, 0, 1), 2), math.radians(13), math.radians(41)),
], False)
sketch8.addConstraint([
    Sketcher.Constraint("Coincident", 0, 2, 1, 1),
    Sketcher.Constraint("Coincident", 1, 2, 2, 1),
    Sketcher.Constraint("Coincident", 2, 2, 3, 1),
    Sketcher.Constraint("Coincident", 3, 2, 4, 1),
    Sketcher.Constraint("Coincident", 4, 2, 5, 1),
    Sketcher.Constraint("Coincident", 5, 2, 6, 1),
    Sketcher.Constraint("Coincident", 6, 2, 7, 1),
    Sketcher.Constraint("Coincident", 7, 2, 0, 1),
    Sketcher.Constraint("Vertical", 0),
    Sketcher.Constraint("Horizontal", 1),
    Sketcher.Constraint("Vertical", 2),
    Sketcher.Constraint("Vertical", 4),
    Sketcher.Constraint("Horizontal", 5),
    Sketcher.Constraint("Vertical", 6),
    Sketcher.Constraint("Coincident", 7, 3, 3, 3),
    Sketcher.Constraint("Equal", 3, 7),
    Sketcher.Constraint("Horizontal", 3, 2, 6, 2),
    Sketcher.Constraint("Horizontal", 2, 2, 7, 2),
    Sketcher.Constraint("Radius", 3, 2.0),
    Sketcher.Constraint("DistanceX", 1, 2, 1, 1, 3.0),
    Sketcher.Constraint("DistanceX", 5, 1, 5, 2, 3.9),
    Sketcher.Constraint("DistanceY", -1, 1, 3, 3, 3.0),
    Sketcher.Constraint("DistanceX", -1, 1, 0, 2, 24.0),
    Sketcher.Constraint("DistanceY", -1, 1, 0, 2, 5.0),
    Sketcher.Constraint("DistanceY", -1, 1, 4, 2, 2.2),
])
sketch8.setExpression("Constraints[18]", "Params.sketch8_radius")
sketch8.setExpression("Constraints[19]", "Params.sketch8_width")
sketch8.setExpression("Constraints[20]", "Params.sketch8_width2")
pocket6 = body.newObject("PartDesign::Pocket", "Pocket005")
pocket6.Profile = sketch8
pocket6.Type = "UpToFirst"
doc.recompute()

chamfer = body.newObject("PartDesign::Chamfer", "Chamfer")
chamfer.Base = (pocket6, edges_at(pocket6, [
    (-30, 30, 2.5),
    (-30, -30, 2.5),
    (30, -30, 2.5),
    (30, 30, 2.5),
]))
chamfer.setExpression("Size", "Params.chamfer_size")

sketch9 = body.newObject("Sketcher::SketchObject", "Sketch008")
sketch9.AttachmentSupport = (doc.getObject("XY_Plane"), [""])
sketch9.MapMode = "FlatFace"
sketch9.AttachmentOffset = App.Placement(V(0, 0, 5), App.Rotation())
sketch9.addGeometry(Part.Circle(V(0, 0, 0), V(0, 0, 1), 18), False)
sketch9.addConstraint([
    Sketcher.Constraint("Coincident", 0, 3, -1, 1),
    Sketcher.Constraint("Diameter", 0, 35.0),
])
sketch9.setExpression("Constraints[1]", "Params.sketch9_diameter")
pocket7 = body.newObject("PartDesign::Pocket", "Pocket006")
pocket7.Profile = sketch9
pocket7.setExpression("Length", "Params.pocket7_length")

sketch10 = body.newObject("Sketcher::SketchObject", "Sketch009")
sketch10.AttachmentSupport = (doc.getObject("XY_Plane"), [""])
sketch10.MapMode = "FlatFace"
sketch10.AttachmentOffset = App.Placement(V(0, 0, 2), App.Rotation())
sketch10.addGeometry(Part.Circle(V(0, 0, 0), V(0, 0, 1), 15), False)
sketch10.addConstraint([
    Sketcher.Constraint("Coincident", 0, 3, -1, 1),
    Sketcher.Constraint("Diameter", 0, 30.0),
])
sketch10.setExpression("Constraints[1]", "Params.sketch10_diameter")
pocket8 = body.newObject("PartDesign::Pocket", "Pocket007")
pocket8.Profile = sketch10
pocket8.Type = "ThroughAll"

sketch11 = body.newObject("Sketcher::SketchObject", "Sketch010")
sketch11.AttachmentSupport = (doc.getObject("XY_Plane"), [""])
sketch11.MapMode = "FlatFace"
sketch11.addGeometry(Part.Circle(V(0, 0, 0), V(0, 0, 1), 45), False)
sketch11.addConstraint([
    Sketcher.Constraint("Coincident", 0, 3, -1, 1),
    Sketcher.Constraint("Diameter", 0, 90.0),
])
sketch11.setExpression("Constraints[1]", "Params.sketch11_diameter")
pocket9 = body.newObject("PartDesign::Pocket", "Pocket008")
pocket9.Profile = sketch11
pocket9.setExpression("Length", "Params.pocket9_length")

doc.recompute()
